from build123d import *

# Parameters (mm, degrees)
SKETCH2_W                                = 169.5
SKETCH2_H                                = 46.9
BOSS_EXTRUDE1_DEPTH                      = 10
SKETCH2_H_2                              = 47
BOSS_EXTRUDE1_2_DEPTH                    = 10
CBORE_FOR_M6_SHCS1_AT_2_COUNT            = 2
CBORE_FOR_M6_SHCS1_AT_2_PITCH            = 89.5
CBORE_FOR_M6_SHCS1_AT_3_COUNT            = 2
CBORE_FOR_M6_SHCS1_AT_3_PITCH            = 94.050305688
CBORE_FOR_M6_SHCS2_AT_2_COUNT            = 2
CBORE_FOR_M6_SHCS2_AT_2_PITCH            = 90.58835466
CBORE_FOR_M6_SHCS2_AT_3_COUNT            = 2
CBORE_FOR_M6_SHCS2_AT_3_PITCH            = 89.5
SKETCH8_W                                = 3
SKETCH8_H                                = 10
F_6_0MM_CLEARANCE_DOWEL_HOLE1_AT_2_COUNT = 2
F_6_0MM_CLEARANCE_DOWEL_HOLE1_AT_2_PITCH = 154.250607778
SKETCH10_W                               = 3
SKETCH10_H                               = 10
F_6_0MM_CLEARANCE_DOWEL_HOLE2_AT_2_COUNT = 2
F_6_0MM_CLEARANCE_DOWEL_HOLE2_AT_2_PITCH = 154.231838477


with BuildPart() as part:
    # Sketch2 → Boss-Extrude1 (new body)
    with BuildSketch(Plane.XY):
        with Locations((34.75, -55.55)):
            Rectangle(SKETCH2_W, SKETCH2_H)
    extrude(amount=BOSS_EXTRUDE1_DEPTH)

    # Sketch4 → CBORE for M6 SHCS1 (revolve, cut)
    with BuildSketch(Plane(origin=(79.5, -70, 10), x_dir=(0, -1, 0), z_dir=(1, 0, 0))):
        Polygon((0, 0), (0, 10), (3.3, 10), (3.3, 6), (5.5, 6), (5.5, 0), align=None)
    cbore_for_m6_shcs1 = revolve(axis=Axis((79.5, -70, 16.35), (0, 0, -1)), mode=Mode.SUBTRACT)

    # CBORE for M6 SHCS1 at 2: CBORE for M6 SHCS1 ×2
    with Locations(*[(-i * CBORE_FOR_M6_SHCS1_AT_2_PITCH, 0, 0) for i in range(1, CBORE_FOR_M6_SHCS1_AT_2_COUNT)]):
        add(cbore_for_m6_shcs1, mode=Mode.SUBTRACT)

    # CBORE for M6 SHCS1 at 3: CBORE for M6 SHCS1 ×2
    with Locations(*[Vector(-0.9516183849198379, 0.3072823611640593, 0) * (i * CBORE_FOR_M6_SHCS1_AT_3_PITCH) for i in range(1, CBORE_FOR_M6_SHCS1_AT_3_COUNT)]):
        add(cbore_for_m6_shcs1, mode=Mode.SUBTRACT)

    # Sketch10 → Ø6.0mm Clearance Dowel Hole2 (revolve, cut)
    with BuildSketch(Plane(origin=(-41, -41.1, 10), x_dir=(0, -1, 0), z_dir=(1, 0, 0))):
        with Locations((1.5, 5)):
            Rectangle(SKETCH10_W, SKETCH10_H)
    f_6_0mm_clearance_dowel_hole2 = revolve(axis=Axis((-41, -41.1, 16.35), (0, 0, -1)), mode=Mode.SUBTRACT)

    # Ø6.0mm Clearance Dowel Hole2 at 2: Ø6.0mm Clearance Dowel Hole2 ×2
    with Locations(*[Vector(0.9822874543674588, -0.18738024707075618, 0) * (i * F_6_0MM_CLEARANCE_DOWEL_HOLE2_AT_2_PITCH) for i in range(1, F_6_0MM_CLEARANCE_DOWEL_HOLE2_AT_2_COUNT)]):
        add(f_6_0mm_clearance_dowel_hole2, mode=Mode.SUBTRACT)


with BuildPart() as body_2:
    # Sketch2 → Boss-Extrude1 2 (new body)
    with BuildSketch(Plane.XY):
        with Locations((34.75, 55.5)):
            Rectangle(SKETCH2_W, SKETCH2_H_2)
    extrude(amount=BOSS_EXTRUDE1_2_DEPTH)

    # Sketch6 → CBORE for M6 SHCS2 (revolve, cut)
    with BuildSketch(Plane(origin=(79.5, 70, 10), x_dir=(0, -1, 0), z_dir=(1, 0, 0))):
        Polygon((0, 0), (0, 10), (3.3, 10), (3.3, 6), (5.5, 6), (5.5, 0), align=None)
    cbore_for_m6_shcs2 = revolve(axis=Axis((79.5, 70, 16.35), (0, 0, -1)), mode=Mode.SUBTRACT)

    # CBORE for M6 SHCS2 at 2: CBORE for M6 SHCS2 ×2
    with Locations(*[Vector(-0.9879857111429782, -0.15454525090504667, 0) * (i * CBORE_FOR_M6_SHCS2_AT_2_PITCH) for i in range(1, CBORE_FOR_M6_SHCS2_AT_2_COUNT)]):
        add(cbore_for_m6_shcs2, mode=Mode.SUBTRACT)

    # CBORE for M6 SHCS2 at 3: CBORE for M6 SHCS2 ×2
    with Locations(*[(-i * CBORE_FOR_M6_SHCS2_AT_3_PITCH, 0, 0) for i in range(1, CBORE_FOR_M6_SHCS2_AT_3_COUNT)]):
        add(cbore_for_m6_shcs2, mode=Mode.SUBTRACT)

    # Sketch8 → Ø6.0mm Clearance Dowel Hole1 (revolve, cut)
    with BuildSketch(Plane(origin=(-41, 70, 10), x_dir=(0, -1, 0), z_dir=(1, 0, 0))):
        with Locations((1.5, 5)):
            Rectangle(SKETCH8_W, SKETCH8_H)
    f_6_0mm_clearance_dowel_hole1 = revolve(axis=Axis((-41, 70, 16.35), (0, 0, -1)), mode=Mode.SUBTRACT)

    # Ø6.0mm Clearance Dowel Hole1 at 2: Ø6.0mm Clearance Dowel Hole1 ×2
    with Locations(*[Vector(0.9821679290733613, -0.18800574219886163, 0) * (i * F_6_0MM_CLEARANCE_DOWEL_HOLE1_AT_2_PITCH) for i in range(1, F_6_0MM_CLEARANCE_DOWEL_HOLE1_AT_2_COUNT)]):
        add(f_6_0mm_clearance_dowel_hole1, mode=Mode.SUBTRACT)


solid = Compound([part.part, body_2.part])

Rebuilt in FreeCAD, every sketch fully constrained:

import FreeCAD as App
import Part
import Sketcher


def add_polygon(sketch, points):
    """Adds a closed chain of lines whose ends are joined by coincident constraints."""
    first, n = sketch.GeometryCount, len(points)
    for a, b in zip(points, points[1:] + points[:1]):
        sketch.addGeometry(Part.LineSegment(App.Vector(*a, 0), App.Vector(*b, 0)), False)
    for i in range(n):
        sketch.addConstraint(Sketcher.Constraint("Coincident", first + i, 2, first + (i + 1) % n, 1))

doc = App.newDocument("Part")
body = doc.addObject("PartDesign::Body", "Body")

sketch1 = body.newObject("Sketcher::SketchObject", "Sketch")
sketch1.AttachmentSupport = (doc.getObject("XY_Plane"), [""])
sketch1.MapMode = "FlatFace"
add_polygon(sketch1, [(-50, -32), (-50, -79), (120, -79), (120, -32)])
sketch1.addConstraint([
    Sketcher.Constraint("Vertical", 0),
    Sketcher.Constraint("Horizontal", 1),
    Sketcher.Constraint("Vertical", 2),
    Sketcher.Constraint("Horizontal", 3),
    Sketcher.Constraint("DistanceX", 1, 1, 1, 2, 169.5),
    Sketcher.Constraint("DistanceY", 0, 2, 0, 1, 46.9),
    Sketcher.Constraint("DistanceX", 0, 2, -1, 1, 50.0),
    Sketcher.Constraint("DistanceY", 0, 2, -1, 1, 79.0),
])
pad1 = body.newObject("PartDesign::Pad", "Pad")
pad1.Profile = sketch1
pad1.Length = 10

sketch2 = body.newObject("Sketcher::SketchObject", "Sketch001")
sketch2.AttachmentSupport = (doc.getObject("YZ_Plane"), [""])
sketch2.MapMode = "FlatFace"
sketch2.AttachmentOffset = App.Placement(App.Vector(0, 0, 79.5), App.Rotation())
add_polygon(sketch2, [(-70, 0), (-70, 10), (-75.5, 10), (-75.5, 4), (-73.3, 4), (-73.3, 0)])
sketch2.addGeometry(Part.LineSegment(App.Vector(-70, 10, 0), App.Vector(-70, 0, 0)), True)
sketch2.addConstraint([
    Sketcher.Constraint("Vertical", 0),
    Sketcher.Constraint("Horizontal", 1),
    Sketcher.Constraint("Vertical", 2),
    Sketcher.Constraint("Horizontal", 3),
    Sketcher.Constraint("Vertical", 4),
    Sketcher.Constraint("Horizontal", 5),
    Sketcher.Constraint("Vertical", 6),
    Sketcher.Constraint("Coincident", 6, 1, 0, 2),
    Sketcher.Constraint("PointOnObject", 4, 2, -1),
    Sketcher.Constraint("PointOnObject", 6, 2, -1),
    Sketcher.Constraint("DistanceY", 0, 1, 0, 2, 10.0),
    Sketcher.Constraint("DistanceY", 2, 2, 2, 1, 6.0),
    Sketcher.Constraint("DistanceX", 1, 2, 1, 1, 5.5),
    Sketcher.Constraint("DistanceX", 3, 1, 3, 2, 2.2),
    Sketcher.Constraint("DistanceX", 0, 2, -1, 1, 70.0),
])
groove = body.newObject("PartDesign::Groove", "Groove")
groove.Profile = sketch2
groove.ReferenceAxis = (sketch2, ["Axis0"])
groove.Angle = 360
doc.recompute()

linearpattern = body.newObject("PartDesign::LinearPattern", "LinearPattern")
linearpattern.Originals = [groove]
linearpattern.Direction = (doc.getObject("X_Axis"), [""])
linearpattern.Mode = "offset"
linearpattern.Offset = 89.5
linearpattern.Occurrences = 2
linearpattern.Reversed = True
body.Tip = linearpattern
doc.recompute()

datumline = body.newObject("PartDesign::Line", "DatumLine")
datumline.Placement = App.Placement(App.Vector(0, 0, 0), App.Rotation(App.Vector(0, 0, 1), App.Vector(-0.951618385, 0.307282361, 0)))
linearpattern2 = body.newObject("PartDesign::LinearPattern", "LinearPattern001")
linearpattern2.Originals = [groove]
linearpattern2.Direction = (datumline, [""])
linearpattern2.Mode = "offset"
linearpattern2.Offset = 94.050306
linearpattern2.Occurrences = 2
body.Tip = linearpattern2

sketch3 = body.newObject("Sketcher::SketchObject", "Sketch002")
sketch3.AttachmentSupport = (doc.getObject("YZ_Plane"), [""])
sketch3.MapMode = "FlatFace"
sketch3.AttachmentOffset = App.Placement(App.Vector(0, 0, -41), App.Rotation())
add_polygon(sketch3, [(-41.1, 0), (-41.1, 10), (-44.1, 10), (-44.1, 0)])
sketch3.addGeometry(Part.LineSegment(App.Vector(-41.1, 10, 0), App.Vector(-41.1, 0, 0)), True)
sketch3.addConstraint([
    Sketcher.Constraint("Vertical", 0),
    Sketcher.Constraint("Horizontal", 1),
    Sketcher.Constraint("Vertical", 2),
    Sketcher.Constraint("Horizontal", 3),
    Sketcher.Constraint("Vertical", 4),
    Sketcher.Constraint("Coincident", 4, 1, 0, 2),
    Sketcher.Constraint("PointOnObject", 2, 2, -1),
    Sketcher.Constraint("PointOnObject", 4, 2, -1),
    Sketcher.Constraint("DistanceX", 1, 2, 1, 1, 3.0),
    Sketcher.Constraint("DistanceY", 0, 1, 0, 2, 10.0),
    Sketcher.Constraint("DistanceX", 0, 2, -1, 1, 41.1),
])
groove2 = body.newObject("PartDesign::Groove", "Groove001")
groove2.Profile = sketch3
groove2.ReferenceAxis = (sketch3, ["Axis0"])
groove2.Angle = 360
doc.recompute()

datumline2 = body.newObject("PartDesign::Line", "DatumLine001")
datumline2.Placement = App.Placement(App.Vector(0, 0, 0), App.Rotation(App.Vector(0, 0, 1), App.Vector(0.982287454, -0.187380247, 0)))
linearpattern3 = body.newObject("PartDesign::LinearPattern", "LinearPattern002")
linearpattern3.Originals = [groove2]
linearpattern3.Direction = (datumline2, [""])
linearpattern3.Mode = "offset"
linearpattern3.Offset = 154.231838
linearpattern3.Occurrences = 2
body.Tip = linearpattern3
body2 = doc.addObject("PartDesign::Body", "Body001")

sketch4 = body2.newObject("Sketcher::SketchObject", "Sketch003")
sketch4.AttachmentSupport = (doc.getObject("XY_Plane001"), [""])
sketch4.MapMode = "FlatFace"
add_polygon(sketch4, [(-50, 79), (-50, 32), (120, 32), (120, 79)])
sketch4.addConstraint([
    Sketcher.Constraint("Vertical", 0),
    Sketcher.Constraint("Horizontal", 1),
    Sketcher.Constraint("Vertical", 2),
    Sketcher.Constraint("Horizontal", 3),
    Sketcher.Constraint("DistanceY", 0, 2, 0, 1, 47.0),
    Sketcher.Constraint("DistanceX", 1, 1, 1, 2, 169.5),
    Sketcher.Constraint("DistanceX", 0, 2, -1, 1, 50.0),
    Sketcher.Constraint("DistanceY", -1, 1, 0, 2, 32.0),
])
pad2 = body2.newObject("PartDesign::Pad", "Pad001")
pad2.Profile = sketch4
pad2.Length = 10

sketch5 = body2.newObject("Sketcher::SketchObject", "Sketch004")
sketch5.AttachmentSupport = (doc.getObject("YZ_Plane001"), [""])
sketch5.MapMode = "FlatFace"
sketch5.AttachmentOffset = App.Placement(App.Vector(0, 0, 79.5), App.Rotation())
add_polygon(sketch5, [(70, 0), (70, 10), (64.5, 10), (64.5, 4), (66.7, 4), (66.7, 0)])
sketch5.addGeometry(Part.LineSegment(App.Vector(70, 10, 0), App.Vector(70, 0, 0)), True)
sketch5.addConstraint([
    Sketcher.Constraint("Vertical", 0),
    Sketcher.Constraint("Horizontal", 1),
    Sketcher.Constraint("Vertical", 2),
    Sketcher.Constraint("Horizontal", 3),
    Sketcher.Constraint("Vertical", 4),
    Sketcher.Constraint("Horizontal", 5),
    Sketcher.Constraint("Vertical", 6),
    Sketcher.Constraint("Coincident", 6, 1, 0, 2),
    Sketcher.Constraint("PointOnObject", 4, 2, -1),
    Sketcher.Constraint("PointOnObject", 6, 2, -1),
    Sketcher.Constraint("DistanceY", 0, 1, 0, 2, 10.0),
    Sketcher.Constraint("DistanceY", 2, 2, 2, 1, 6.0),
    Sketcher.Constraint("DistanceX", 1, 2, 1, 1, 5.5),
    Sketcher.Constraint("DistanceX", 3, 1, 3, 2, 2.2),
    Sketcher.Constraint("DistanceX", -1, 1, 0, 2, 70.0),
])
groove3 = body2.newObject("PartDesign::Groove", "Groove002")
groove3.Profile = sketch5
groove3.ReferenceAxis = (sketch5, ["Axis0"])
groove3.Angle = 360
doc.recompute()

datumline3 = body2.newObject("PartDesign::Line", "DatumLine002")
datumline3.Placement = App.Placement(App.Vector(0, 0, 0), App.Rotation(App.Vector(0, 0, 1), App.Vector(-0.987985711, -0.154545251, 0)))
linearpattern4 = body2.newObject("PartDesign::LinearPattern", "LinearPattern003")
linearpattern4.Originals = [groove3]
linearpattern4.Direction = (datumline3, [""])
linearpattern4.Mode = "offset"
linearpattern4.Offset = 90.588355
linearpattern4.Occurrences = 2
body2.Tip = linearpattern4
doc.recompute()

linearpattern5 = body2.newObject("PartDesign::LinearPattern", "LinearPattern004")
linearpattern5.Originals = [groove3]
linearpattern5.Direction = (doc.getObject("X_Axis001"), [""])
linearpattern5.Mode = "offset"
linearpattern5.Offset = 89.5
linearpattern5.Occurrences = 2
linearpattern5.Reversed = True
body2.Tip = linearpattern5

sketch6 = body2.newObject("Sketcher::SketchObject", "Sketch005")
sketch6.AttachmentSupport = (doc.getObject("YZ_Plane001"), [""])
sketch6.MapMode = "FlatFace"
sketch6.AttachmentOffset = App.Placement(App.Vector(0, 0, -41), App.Rotation())
add_polygon(sketch6, [(70, 0), (70, 10), (67, 10), (67, 0)])
sketch6.addGeometry(Part.LineSegment(App.Vector(70, 10, 0), App.Vector(70, 0, 0)), True)
sketch6.addConstraint([
    Sketcher.Constraint("Vertical", 0),
    Sketcher.Constraint("Horizontal", 1),
    Sketcher.Constraint("Vertical", 2),
    Sketcher.Constraint("Horizontal", 3),
    Sketcher.Constraint("Vertical", 4),
    Sketcher.Constraint("Coincident", 4, 1, 0, 2),
    Sketcher.Constraint("PointOnObject", 2, 2, -1),
    Sketcher.Constraint("PointOnObject", 4, 2, -1),
    Sketcher.Constraint("DistanceX", 1, 2, 1, 1, 3.0),
    Sketcher.Constraint("DistanceY", 0, 1, 0, 2, 10.0),
    Sketcher.Constraint("DistanceX", -1, 1, 0, 2, 70.0),
])
groove4 = body2.newObject("PartDesign::Groove", "Groove003")
groove4.Profile = sketch6
groove4.ReferenceAxis = (sketch6, ["Axis0"])
groove4.Angle = 360
doc.recompute()

datumline4 = body2.newObject("PartDesign::Line", "DatumLine003")
datumline4.Placement = App.Placement(App.Vector(0, 0, 0), App.Rotation(App.Vector(0, 0, 1), App.Vector(0.982167929, -0.188005742, 0)))
linearpattern6 = body2.newObject("PartDesign::LinearPattern", "LinearPattern005")
linearpattern6.Originals = [groove4]
linearpattern6.Direction = (datumline4, [""])
linearpattern6.Mode = "offset"
linearpattern6.Offset = 154.250608
linearpattern6.Occurrences = 2
body2.Tip = linearpattern6

doc.recompute()
